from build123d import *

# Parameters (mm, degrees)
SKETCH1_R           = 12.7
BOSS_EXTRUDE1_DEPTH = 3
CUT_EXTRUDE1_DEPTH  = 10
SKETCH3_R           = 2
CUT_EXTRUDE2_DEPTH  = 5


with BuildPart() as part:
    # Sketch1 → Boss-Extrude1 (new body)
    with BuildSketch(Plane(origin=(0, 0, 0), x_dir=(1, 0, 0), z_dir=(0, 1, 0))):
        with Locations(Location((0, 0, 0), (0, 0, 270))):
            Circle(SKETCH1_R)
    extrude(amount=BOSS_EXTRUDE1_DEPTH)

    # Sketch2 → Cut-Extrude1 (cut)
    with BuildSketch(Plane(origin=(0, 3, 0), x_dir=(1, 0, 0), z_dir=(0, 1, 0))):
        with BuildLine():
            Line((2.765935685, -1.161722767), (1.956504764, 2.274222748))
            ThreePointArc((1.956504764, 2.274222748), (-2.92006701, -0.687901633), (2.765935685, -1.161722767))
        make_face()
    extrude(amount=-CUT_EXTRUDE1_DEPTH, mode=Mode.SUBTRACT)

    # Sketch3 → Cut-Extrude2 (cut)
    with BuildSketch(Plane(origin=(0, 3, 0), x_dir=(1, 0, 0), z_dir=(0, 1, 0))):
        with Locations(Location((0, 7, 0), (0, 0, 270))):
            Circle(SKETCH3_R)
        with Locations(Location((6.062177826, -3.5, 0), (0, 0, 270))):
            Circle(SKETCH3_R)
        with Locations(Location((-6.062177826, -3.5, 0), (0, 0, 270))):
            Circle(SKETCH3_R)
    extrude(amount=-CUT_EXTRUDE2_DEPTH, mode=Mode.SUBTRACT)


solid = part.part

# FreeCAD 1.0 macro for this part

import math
import FreeCAD as App
import Part
import Sketcher

doc = App.newDocument("Part")
body = doc.addObject("PartDesign::Body", "Body")

sketch1 = body.newObject("Sketcher::SketchObject", "Sketch")
sketch1.AttachmentSupport = (doc.getObject("XZ_Plane"), [""])
sketch1.MapMode = "FlatFace"
sketch1.addGeometry(Part.Circle(App.Vector(0, 0, 0), App.Vector(0, 0, 1), 12.7), False)
sketch1.addConstraint(Sketcher.Constraint("Coincident", 0, 3, -1, 1))
sketch1.addConstraint(Sketcher.Constraint("Diameter", 0, 25.4))
pad1 = body.newObject("PartDesign::Pad", "Pad")
pad1.Profile = sketch1
pad1.Length = 3
pad1.Reversed = True

sketch2 = body.newObject("Sketcher::SketchObject", "Sketch001")
sketch2.AttachmentSupport = (doc.getObject("XZ_Plane"), [""])
sketch2.MapMode = "FlatFace"
sketch2.AttachmentOffset = App.Placement(App.Vector(0, 0, -3), App.Rotation())
sketch2.addGeometry(Part.LineSegment(App.Vector(2.765936, 1.161723, 0), App.Vector(1.956505, -2.274223, 0)), False)
sketch2.addGeometry(Part.ArcOfCircle(Part.Circle(App.Vector(0, 0, 0), App.Vector(0, 0, 1), 3), math.radians(22.78293), math.radians(310.705279)), False)
sketch2.addConstraint(Sketcher.Constraint("Coincident", 0, 1, 1, 1))
sketch2.addConstraint(Sketcher.Constraint("Coincident", 1, 2, 0, 2))
sketch2.addConstraint(Sketcher.Constraint("Coincident", 1, 3, -1, 1))
sketch2.addConstraint(Sketcher.Constraint("Radius", 1, 3.0))
sketch2.addConstraint(Sketcher.Constraint("Distance", 0, 3.53))
sketch2.addConstraint(Sketcher.Constraint("DistanceX", 1, 2, 0, 1, 0.809431))
pocket1 = body.newObject("PartDesign::Pocket", "Pocket")
pocket1.Profile = sketch2
pocket1.Length = 10
pocket1.Reversed = True

sketch3 = body.newObject("Sketcher::SketchObject", "Sketch002")
sketch3.AttachmentSupport = (doc.getObject("XZ_Plane"), [""])
sketch3.MapMode = "FlatFace"
sketch3.AttachmentOffset = App.Placement(App.Vector(0, 0, -3), App.Rotation())
sketch3.addGeometry(Part.Circle(App.Vector(0, -7, 0), App.Vector(0, 0, 1), 2), False)
sketch3.addGeometry(Part.Circle(App.Vector(6.062178, 3.5, 0), App.Vector(0, 0, 1), 2), False)
sketch3.addGeometry(Part.Circle(App.Vector(-6.062178, 3.5, 0), App.Vector(0, 0, 1), 2), False)
sketch3.addConstraint(Sketcher.Constraint("Equal", 0, 1))
sketch3.addConstraint(Sketcher.Constraint("Equal", 1, 2))
sketch3.addConstraint(Sketcher.Constraint("Symmetric", 1, 3, 2, 3, -2))
sketch3.addConstraint(Sketcher.Constraint("PointOnObject", 0, 3, -2))
sketch3.addConstraint(Sketcher.Constraint("Diameter", 0, 4.0))
sketch3.addConstraint(Sketcher.Constraint("DistanceY", 0, 3, -1, 1, 7.0))
sketch3.addConstraint(Sketcher.Constraint("DistanceY", -1, 1, 1, 3, 3.5))
sketch3.addConstraint(Sketcher.Constraint("DistanceX", -1, 1, 1, 3, 6.062178))
pocket2 = body.newObject("PartDesign::Pocket", "Pocket001")
pocket2.Profile = sketch3
pocket2.Length = 5
pocket2.Reversed = True

doc.recompute()
